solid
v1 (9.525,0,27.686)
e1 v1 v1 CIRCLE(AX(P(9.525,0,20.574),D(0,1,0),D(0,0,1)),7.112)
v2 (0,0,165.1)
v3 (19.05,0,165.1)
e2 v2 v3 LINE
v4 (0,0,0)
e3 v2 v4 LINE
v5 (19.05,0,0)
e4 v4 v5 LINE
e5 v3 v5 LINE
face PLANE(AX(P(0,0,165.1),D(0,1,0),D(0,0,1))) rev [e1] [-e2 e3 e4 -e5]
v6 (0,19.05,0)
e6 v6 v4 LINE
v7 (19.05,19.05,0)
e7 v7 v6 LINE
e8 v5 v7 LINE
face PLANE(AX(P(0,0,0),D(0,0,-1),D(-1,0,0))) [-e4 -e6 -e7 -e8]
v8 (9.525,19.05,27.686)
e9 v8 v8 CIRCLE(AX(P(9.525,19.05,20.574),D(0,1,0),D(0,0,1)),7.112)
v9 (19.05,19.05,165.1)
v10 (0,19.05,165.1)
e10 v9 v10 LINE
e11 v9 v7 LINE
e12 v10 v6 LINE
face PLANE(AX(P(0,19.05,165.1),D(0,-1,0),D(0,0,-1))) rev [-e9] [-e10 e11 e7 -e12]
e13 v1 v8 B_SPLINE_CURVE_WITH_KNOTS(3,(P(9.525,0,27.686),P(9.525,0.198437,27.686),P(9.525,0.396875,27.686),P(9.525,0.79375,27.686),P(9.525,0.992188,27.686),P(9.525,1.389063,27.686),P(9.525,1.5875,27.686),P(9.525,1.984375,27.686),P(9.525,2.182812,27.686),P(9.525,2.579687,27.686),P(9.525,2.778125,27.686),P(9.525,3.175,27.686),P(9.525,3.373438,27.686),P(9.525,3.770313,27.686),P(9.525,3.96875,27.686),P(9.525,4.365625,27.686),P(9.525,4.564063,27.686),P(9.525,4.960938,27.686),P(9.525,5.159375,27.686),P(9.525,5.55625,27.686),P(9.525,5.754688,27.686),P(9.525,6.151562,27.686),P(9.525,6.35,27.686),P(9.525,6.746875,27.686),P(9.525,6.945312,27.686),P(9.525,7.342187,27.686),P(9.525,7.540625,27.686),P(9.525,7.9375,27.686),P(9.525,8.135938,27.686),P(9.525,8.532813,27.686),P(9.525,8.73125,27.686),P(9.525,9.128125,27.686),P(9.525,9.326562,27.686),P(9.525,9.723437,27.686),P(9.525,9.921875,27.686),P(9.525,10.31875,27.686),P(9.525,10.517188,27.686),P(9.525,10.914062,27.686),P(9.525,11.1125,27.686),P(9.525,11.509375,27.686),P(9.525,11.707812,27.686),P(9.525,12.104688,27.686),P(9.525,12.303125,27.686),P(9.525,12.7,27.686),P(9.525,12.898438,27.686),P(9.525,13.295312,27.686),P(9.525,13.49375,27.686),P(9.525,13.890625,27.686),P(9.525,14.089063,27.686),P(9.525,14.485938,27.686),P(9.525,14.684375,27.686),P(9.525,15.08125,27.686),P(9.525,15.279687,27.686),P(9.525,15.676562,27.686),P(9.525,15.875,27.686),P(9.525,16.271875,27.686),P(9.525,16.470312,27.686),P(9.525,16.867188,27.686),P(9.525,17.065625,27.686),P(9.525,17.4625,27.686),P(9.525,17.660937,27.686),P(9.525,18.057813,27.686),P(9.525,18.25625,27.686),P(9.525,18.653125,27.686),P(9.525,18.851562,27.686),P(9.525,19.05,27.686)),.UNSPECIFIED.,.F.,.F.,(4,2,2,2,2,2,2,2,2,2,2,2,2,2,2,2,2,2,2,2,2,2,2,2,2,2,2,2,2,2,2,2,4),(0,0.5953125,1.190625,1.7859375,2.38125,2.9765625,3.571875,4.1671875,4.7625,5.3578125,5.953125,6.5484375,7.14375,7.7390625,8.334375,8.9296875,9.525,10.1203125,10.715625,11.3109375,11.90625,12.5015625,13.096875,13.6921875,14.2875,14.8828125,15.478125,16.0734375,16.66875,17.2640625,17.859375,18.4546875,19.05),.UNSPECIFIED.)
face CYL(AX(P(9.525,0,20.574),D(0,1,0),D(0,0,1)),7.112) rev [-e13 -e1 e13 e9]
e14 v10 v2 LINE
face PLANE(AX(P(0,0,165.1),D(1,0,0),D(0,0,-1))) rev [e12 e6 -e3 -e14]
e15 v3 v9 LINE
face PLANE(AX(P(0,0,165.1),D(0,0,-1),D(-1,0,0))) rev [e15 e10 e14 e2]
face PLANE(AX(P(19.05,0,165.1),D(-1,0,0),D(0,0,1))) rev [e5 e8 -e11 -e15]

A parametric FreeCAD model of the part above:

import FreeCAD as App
import Part
import Sketcher

V = App.Vector
Q = App.Units.Quantity


def add_polygon(sketch, points):
    """Adds a closed chain of lines whose ends are joined by coincident constraints."""
    first, n = sketch.GeometryCount, len(points)
    for a, b in zip(points, points[1:] + points[:1]):
        sketch.addGeometry(Part.LineSegment(App.Vector(*a, 0), App.Vector(*b, 0)), False)
    for i in range(n):
        sketch.addConstraint(Sketcher.Constraint("Coincident", first + i, 2, first + (i + 1) % n, 1))

doc = App.newDocument("Part")
body = doc.addObject("PartDesign::Body", "Body")

# Sketch on XY plane
sketch1 = doc.addObject("Sketcher::SketchObject", "Sketch")
body.addObject(sketch1)
sketch1.AttachmentSupport = (doc.XY_Plane, [""])
sketch1.MapMode = "FlatFace"
add_polygon(sketch1, [(0, 19), (0, 0), (19, 0), (19, 19)])  # lines 0-3
sketch1.addConstraint([
    Sketcher.Constraint("Vertical", 0),
    Sketcher.Constraint("Horizontal", 1),
    Sketcher.Constraint("Vertical", 2),
    Sketcher.Constraint("Horizontal", 3),
    Sketcher.Constraint("Coincident", 0, 2, -1, 1),
    Sketcher.Constraint("Equal", 3, 0),
    Sketcher.Constraint("DistanceX", 1, 1, 1, 2, Q("0.75 in")),
])
pad1 = doc.addObject("PartDesign::Pad", "Pad")
body.addObject(pad1)
pad1.Profile = sketch1
pad1.Length = Q("6.5 in")

# Sketch on XZ plane
sketch2 = doc.addObject("Sketcher::SketchObject", "Sketch001")
body.addObject(sketch2)
sketch2.AttachmentSupport = (doc.XZ_Plane, [""])
sketch2.MapMode = "FlatFace"
sketch2.AttachmentOffset = App.Placement(V(0, 0, -0.75 * 25.4), App.Rotation())
sketch2.addGeometry(Part.Circle(V(10, 21, 0), V(0, 0, 1), 7), False)
sketch2.addConstraint([
    Sketcher.Constraint("Diameter", 0, Q("0.56 in")),
    Sketcher.Constraint("DistanceY", -1, 1, 0, 3, Q("0.81 in")),
    Sketcher.Constraint("DistanceX", -1, 1, 0, 3, Q("0.375 in")),
])
pocket1 = doc.addObject("PartDesign::Pocket", "Pocket")
body.addObject(pocket1)
pocket1.Profile = sketch2
pocket1.Type = "ThroughAll"
pocket1.Reversed = True

doc.recompute()
